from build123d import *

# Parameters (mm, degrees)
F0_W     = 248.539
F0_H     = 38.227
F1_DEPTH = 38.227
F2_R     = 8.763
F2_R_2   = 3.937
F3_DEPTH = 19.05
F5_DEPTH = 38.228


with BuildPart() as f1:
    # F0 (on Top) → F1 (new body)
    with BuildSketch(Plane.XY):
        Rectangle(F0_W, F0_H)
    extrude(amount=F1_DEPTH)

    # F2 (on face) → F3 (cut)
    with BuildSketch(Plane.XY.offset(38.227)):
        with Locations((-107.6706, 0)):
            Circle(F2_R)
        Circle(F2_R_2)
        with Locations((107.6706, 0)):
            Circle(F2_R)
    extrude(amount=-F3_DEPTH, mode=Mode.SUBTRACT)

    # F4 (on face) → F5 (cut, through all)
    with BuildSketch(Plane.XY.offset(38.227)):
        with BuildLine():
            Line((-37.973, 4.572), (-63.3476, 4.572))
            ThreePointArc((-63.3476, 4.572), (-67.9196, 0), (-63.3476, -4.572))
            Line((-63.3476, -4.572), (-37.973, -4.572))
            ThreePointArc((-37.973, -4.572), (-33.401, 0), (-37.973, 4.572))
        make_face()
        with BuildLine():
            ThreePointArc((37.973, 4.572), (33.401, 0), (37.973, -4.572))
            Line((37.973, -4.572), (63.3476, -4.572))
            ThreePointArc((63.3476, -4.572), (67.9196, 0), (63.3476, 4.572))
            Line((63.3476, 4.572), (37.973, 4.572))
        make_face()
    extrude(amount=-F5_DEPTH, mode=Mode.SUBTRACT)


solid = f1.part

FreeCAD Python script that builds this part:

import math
import FreeCAD as App
import Part
import Sketcher
from FreeCAD import Vector
Q = App.Units.Quantity


def add_polygon(sketch, points):
    """Adds a closed chain of lines whose ends are joined by coincident constraints."""
    first, n = sketch.GeometryCount, len(points)
    for a, b in zip(points, points[1:] + points[:1]):
        sketch.addGeometry(Part.LineSegment(App.Vector(*a, 0), App.Vector(*b, 0)), False)
    for i in range(n):
        sketch.addConstraint(Sketcher.Constraint("Coincident", first + i, 2, first + (i + 1) % n, 1))

doc = App.newDocument("Part")
body = doc.addObject("PartDesign::Body", "Body")

sketch1 = body.newObject("Sketcher::SketchObject", "Sketch")
sketch1.AttachmentSupport = (doc.getObject("XY_Plane"), [""])
sketch1.MapMode = "FlatFace"
add_polygon(sketch1, [(-124, 19), (-124, -19), (124, -19), (124, 19)])
sketch1.addConstraint(Sketcher.Constraint("Vertical", 0))
sketch1.addConstraint(Sketcher.Constraint("Horizontal", 1))
sketch1.addConstraint(Sketcher.Constraint("Vertical", 2))
sketch1.addConstraint(Sketcher.Constraint("Horizontal", 3))
sketch1.addConstraint(Sketcher.Constraint("Symmetric", 0, 2, 2, 2, -1, 1))
sketch1.addConstraint(Sketcher.Constraint("DistanceX", 1, 1, 1, 2, Q("9.785 in")))
sketch1.addConstraint(Sketcher.Constraint("DistanceY", 0, 2, 0, 1, Q("1.505 in")))
pad1 = body.newObject("PartDesign::Pad", "Pad")
pad1.Profile = sketch1
pad1.Length = Q("1.505 in")

sketch2 = body.newObject("Sketcher::SketchObject", "Sketch001")
sketch2.AttachmentSupport = (doc.getObject("XY_Plane"), [""])
sketch2.MapMode = "FlatFace"
sketch2.AttachmentOffset = App.Placement(Vector(0, 0, 1.505 * 25.4), App.Rotation())
sketch2.addGeometry(Part.Circle(Vector(-107.7, 0, 0), Vector(0, 0, 1), 8.8), False)
sketch2.addGeometry(Part.Circle(Vector(0, 0, 0), Vector(0, 0, 1), 3.9), False)
sketch2.addGeometry(Part.Circle(Vector(107.7, 0, 0), Vector(0, 0, 1), 8.8), False)
sketch2.addConstraint(Sketcher.Constraint("Coincident", 1, 3, -1, 1))
sketch2.addConstraint(Sketcher.Constraint("Equal", 0, 2))
sketch2.addConstraint(Sketcher.Constraint("Symmetric", 0, 3, 2, 3, -1, 1))
sketch2.addConstraint(Sketcher.Constraint("PointOnObject", 0, 3, -1))
sketch2.addConstraint(Sketcher.Constraint("Diameter", 0, Q("0.69 in")))
sketch2.addConstraint(Sketcher.Constraint("Diameter", 1, Q("0.31 in")))
sketch2.addConstraint(Sketcher.Constraint("DistanceX", 0, 3, -1, 1, Q("4.239 in")))
pocket1 = body.newObject("PartDesign::Pocket", "Pocket")
pocket1.Profile = sketch2
pocket1.Length = Q("0.75 in")

sketch3 = body.newObject("Sketcher::SketchObject", "Sketch002")
sketch3.AttachmentSupport = (doc.getObject("XY_Plane"), [""])
sketch3.MapMode = "FlatFace"
sketch3.AttachmentOffset = App.Placement(Vector(0, 0, 1.505 * 25.4), App.Rotation())
sketch3.addGeometry(Part.LineSegment(Vector(-38, 4.6, 0), Vector(-63.3, 4.6, 0)), False)
sketch3.addGeometry(Part.ArcOfCircle(Part.Circle(Vector(-63.3, 0, 0), Vector(0, 0, 1), 4.6), math.radians(90), math.radians(270)), False)
sketch3.addGeometry(Part.LineSegment(Vector(-63.3, -4.6, 0), Vector(-38, -4.6, 0)), False)
sketch3.addGeometry(Part.ArcOfCircle(Part.Circle(Vector(-38, 0, 0), Vector(0, 0, 1), 4.6), math.radians(-90), math.radians(90)), False)
sketch3.addGeometry(Part.ArcOfCircle(Part.Circle(Vector(38, 0, 0), Vector(0, 0, 1), 4.6), math.radians(90), math.radians(270)), False)
sketch3.addGeometry(Part.LineSegment(Vector(38, -4.6, 0), Vector(63.3, -4.6, 0)), False)
sketch3.addGeometry(Part.ArcOfCircle(Part.Circle(Vector(63.3, 0, 0), Vector(0, 0, 1), 4.6), math.radians(-90), math.radians(90)), False)
sketch3.addGeometry(Part.LineSegment(Vector(63.3, 4.6, 0), Vector(38, 4.6, 0)), False)
sketch3.addConstraint(Sketcher.Constraint("Tangent", 0, 2, 1, 1))
sketch3.addConstraint(Sketcher.Constraint("Tangent", 1, 2, 2, 1))
sketch3.addConstraint(Sketcher.Constraint("Tangent", 2, 2, 3, 1))
sketch3.addConstraint(Sketcher.Constraint("Tangent", 3, 2, 0, 1))
sketch3.addConstraint(Sketcher.Constraint("Tangent", 4, 2, 5, 1))
sketch3.addConstraint(Sketcher.Constraint("Tangent", 5, 2, 6, 1))
sketch3.addConstraint(Sketcher.Constraint("Tangent", 6, 2, 7, 1))
sketch3.addConstraint(Sketcher.Constraint("Tangent", 7, 2, 4, 1))
sketch3.addConstraint(Sketcher.Constraint("Horizontal", 0))
sketch3.addConstraint(Sketcher.Constraint("Horizontal", 2))
sketch3.addConstraint(Sketcher.Constraint("Horizontal", 5))
sketch3.addConstraint(Sketcher.Constraint("Horizontal", 7))
sketch3.addConstraint(Sketcher.Constraint("Equal", 3, 4))
sketch3.addConstraint(Sketcher.Constraint("Symmetric", 3, 3, 4, 3, -1, 1))
sketch3.addConstraint(Sketcher.Constraint("Symmetric", 1, 3, 6, 3, -2))
sketch3.addConstraint(Sketcher.Constraint("Radius", 1, Q("0.18 in")))
sketch3.addConstraint(Sketcher.Constraint("DistanceX", 0, 2, 0, 1, Q("0.999 in")))
sketch3.addConstraint(Sketcher.Constraint("DistanceX", 3, 3, 4, 3, Q("2.99 in")))
pocket2 = body.newObject("PartDesign::Pocket", "Pocket001")
pocket2.Profile = sketch3
pocket2.Type = "ThroughAll"

doc.recompute()
